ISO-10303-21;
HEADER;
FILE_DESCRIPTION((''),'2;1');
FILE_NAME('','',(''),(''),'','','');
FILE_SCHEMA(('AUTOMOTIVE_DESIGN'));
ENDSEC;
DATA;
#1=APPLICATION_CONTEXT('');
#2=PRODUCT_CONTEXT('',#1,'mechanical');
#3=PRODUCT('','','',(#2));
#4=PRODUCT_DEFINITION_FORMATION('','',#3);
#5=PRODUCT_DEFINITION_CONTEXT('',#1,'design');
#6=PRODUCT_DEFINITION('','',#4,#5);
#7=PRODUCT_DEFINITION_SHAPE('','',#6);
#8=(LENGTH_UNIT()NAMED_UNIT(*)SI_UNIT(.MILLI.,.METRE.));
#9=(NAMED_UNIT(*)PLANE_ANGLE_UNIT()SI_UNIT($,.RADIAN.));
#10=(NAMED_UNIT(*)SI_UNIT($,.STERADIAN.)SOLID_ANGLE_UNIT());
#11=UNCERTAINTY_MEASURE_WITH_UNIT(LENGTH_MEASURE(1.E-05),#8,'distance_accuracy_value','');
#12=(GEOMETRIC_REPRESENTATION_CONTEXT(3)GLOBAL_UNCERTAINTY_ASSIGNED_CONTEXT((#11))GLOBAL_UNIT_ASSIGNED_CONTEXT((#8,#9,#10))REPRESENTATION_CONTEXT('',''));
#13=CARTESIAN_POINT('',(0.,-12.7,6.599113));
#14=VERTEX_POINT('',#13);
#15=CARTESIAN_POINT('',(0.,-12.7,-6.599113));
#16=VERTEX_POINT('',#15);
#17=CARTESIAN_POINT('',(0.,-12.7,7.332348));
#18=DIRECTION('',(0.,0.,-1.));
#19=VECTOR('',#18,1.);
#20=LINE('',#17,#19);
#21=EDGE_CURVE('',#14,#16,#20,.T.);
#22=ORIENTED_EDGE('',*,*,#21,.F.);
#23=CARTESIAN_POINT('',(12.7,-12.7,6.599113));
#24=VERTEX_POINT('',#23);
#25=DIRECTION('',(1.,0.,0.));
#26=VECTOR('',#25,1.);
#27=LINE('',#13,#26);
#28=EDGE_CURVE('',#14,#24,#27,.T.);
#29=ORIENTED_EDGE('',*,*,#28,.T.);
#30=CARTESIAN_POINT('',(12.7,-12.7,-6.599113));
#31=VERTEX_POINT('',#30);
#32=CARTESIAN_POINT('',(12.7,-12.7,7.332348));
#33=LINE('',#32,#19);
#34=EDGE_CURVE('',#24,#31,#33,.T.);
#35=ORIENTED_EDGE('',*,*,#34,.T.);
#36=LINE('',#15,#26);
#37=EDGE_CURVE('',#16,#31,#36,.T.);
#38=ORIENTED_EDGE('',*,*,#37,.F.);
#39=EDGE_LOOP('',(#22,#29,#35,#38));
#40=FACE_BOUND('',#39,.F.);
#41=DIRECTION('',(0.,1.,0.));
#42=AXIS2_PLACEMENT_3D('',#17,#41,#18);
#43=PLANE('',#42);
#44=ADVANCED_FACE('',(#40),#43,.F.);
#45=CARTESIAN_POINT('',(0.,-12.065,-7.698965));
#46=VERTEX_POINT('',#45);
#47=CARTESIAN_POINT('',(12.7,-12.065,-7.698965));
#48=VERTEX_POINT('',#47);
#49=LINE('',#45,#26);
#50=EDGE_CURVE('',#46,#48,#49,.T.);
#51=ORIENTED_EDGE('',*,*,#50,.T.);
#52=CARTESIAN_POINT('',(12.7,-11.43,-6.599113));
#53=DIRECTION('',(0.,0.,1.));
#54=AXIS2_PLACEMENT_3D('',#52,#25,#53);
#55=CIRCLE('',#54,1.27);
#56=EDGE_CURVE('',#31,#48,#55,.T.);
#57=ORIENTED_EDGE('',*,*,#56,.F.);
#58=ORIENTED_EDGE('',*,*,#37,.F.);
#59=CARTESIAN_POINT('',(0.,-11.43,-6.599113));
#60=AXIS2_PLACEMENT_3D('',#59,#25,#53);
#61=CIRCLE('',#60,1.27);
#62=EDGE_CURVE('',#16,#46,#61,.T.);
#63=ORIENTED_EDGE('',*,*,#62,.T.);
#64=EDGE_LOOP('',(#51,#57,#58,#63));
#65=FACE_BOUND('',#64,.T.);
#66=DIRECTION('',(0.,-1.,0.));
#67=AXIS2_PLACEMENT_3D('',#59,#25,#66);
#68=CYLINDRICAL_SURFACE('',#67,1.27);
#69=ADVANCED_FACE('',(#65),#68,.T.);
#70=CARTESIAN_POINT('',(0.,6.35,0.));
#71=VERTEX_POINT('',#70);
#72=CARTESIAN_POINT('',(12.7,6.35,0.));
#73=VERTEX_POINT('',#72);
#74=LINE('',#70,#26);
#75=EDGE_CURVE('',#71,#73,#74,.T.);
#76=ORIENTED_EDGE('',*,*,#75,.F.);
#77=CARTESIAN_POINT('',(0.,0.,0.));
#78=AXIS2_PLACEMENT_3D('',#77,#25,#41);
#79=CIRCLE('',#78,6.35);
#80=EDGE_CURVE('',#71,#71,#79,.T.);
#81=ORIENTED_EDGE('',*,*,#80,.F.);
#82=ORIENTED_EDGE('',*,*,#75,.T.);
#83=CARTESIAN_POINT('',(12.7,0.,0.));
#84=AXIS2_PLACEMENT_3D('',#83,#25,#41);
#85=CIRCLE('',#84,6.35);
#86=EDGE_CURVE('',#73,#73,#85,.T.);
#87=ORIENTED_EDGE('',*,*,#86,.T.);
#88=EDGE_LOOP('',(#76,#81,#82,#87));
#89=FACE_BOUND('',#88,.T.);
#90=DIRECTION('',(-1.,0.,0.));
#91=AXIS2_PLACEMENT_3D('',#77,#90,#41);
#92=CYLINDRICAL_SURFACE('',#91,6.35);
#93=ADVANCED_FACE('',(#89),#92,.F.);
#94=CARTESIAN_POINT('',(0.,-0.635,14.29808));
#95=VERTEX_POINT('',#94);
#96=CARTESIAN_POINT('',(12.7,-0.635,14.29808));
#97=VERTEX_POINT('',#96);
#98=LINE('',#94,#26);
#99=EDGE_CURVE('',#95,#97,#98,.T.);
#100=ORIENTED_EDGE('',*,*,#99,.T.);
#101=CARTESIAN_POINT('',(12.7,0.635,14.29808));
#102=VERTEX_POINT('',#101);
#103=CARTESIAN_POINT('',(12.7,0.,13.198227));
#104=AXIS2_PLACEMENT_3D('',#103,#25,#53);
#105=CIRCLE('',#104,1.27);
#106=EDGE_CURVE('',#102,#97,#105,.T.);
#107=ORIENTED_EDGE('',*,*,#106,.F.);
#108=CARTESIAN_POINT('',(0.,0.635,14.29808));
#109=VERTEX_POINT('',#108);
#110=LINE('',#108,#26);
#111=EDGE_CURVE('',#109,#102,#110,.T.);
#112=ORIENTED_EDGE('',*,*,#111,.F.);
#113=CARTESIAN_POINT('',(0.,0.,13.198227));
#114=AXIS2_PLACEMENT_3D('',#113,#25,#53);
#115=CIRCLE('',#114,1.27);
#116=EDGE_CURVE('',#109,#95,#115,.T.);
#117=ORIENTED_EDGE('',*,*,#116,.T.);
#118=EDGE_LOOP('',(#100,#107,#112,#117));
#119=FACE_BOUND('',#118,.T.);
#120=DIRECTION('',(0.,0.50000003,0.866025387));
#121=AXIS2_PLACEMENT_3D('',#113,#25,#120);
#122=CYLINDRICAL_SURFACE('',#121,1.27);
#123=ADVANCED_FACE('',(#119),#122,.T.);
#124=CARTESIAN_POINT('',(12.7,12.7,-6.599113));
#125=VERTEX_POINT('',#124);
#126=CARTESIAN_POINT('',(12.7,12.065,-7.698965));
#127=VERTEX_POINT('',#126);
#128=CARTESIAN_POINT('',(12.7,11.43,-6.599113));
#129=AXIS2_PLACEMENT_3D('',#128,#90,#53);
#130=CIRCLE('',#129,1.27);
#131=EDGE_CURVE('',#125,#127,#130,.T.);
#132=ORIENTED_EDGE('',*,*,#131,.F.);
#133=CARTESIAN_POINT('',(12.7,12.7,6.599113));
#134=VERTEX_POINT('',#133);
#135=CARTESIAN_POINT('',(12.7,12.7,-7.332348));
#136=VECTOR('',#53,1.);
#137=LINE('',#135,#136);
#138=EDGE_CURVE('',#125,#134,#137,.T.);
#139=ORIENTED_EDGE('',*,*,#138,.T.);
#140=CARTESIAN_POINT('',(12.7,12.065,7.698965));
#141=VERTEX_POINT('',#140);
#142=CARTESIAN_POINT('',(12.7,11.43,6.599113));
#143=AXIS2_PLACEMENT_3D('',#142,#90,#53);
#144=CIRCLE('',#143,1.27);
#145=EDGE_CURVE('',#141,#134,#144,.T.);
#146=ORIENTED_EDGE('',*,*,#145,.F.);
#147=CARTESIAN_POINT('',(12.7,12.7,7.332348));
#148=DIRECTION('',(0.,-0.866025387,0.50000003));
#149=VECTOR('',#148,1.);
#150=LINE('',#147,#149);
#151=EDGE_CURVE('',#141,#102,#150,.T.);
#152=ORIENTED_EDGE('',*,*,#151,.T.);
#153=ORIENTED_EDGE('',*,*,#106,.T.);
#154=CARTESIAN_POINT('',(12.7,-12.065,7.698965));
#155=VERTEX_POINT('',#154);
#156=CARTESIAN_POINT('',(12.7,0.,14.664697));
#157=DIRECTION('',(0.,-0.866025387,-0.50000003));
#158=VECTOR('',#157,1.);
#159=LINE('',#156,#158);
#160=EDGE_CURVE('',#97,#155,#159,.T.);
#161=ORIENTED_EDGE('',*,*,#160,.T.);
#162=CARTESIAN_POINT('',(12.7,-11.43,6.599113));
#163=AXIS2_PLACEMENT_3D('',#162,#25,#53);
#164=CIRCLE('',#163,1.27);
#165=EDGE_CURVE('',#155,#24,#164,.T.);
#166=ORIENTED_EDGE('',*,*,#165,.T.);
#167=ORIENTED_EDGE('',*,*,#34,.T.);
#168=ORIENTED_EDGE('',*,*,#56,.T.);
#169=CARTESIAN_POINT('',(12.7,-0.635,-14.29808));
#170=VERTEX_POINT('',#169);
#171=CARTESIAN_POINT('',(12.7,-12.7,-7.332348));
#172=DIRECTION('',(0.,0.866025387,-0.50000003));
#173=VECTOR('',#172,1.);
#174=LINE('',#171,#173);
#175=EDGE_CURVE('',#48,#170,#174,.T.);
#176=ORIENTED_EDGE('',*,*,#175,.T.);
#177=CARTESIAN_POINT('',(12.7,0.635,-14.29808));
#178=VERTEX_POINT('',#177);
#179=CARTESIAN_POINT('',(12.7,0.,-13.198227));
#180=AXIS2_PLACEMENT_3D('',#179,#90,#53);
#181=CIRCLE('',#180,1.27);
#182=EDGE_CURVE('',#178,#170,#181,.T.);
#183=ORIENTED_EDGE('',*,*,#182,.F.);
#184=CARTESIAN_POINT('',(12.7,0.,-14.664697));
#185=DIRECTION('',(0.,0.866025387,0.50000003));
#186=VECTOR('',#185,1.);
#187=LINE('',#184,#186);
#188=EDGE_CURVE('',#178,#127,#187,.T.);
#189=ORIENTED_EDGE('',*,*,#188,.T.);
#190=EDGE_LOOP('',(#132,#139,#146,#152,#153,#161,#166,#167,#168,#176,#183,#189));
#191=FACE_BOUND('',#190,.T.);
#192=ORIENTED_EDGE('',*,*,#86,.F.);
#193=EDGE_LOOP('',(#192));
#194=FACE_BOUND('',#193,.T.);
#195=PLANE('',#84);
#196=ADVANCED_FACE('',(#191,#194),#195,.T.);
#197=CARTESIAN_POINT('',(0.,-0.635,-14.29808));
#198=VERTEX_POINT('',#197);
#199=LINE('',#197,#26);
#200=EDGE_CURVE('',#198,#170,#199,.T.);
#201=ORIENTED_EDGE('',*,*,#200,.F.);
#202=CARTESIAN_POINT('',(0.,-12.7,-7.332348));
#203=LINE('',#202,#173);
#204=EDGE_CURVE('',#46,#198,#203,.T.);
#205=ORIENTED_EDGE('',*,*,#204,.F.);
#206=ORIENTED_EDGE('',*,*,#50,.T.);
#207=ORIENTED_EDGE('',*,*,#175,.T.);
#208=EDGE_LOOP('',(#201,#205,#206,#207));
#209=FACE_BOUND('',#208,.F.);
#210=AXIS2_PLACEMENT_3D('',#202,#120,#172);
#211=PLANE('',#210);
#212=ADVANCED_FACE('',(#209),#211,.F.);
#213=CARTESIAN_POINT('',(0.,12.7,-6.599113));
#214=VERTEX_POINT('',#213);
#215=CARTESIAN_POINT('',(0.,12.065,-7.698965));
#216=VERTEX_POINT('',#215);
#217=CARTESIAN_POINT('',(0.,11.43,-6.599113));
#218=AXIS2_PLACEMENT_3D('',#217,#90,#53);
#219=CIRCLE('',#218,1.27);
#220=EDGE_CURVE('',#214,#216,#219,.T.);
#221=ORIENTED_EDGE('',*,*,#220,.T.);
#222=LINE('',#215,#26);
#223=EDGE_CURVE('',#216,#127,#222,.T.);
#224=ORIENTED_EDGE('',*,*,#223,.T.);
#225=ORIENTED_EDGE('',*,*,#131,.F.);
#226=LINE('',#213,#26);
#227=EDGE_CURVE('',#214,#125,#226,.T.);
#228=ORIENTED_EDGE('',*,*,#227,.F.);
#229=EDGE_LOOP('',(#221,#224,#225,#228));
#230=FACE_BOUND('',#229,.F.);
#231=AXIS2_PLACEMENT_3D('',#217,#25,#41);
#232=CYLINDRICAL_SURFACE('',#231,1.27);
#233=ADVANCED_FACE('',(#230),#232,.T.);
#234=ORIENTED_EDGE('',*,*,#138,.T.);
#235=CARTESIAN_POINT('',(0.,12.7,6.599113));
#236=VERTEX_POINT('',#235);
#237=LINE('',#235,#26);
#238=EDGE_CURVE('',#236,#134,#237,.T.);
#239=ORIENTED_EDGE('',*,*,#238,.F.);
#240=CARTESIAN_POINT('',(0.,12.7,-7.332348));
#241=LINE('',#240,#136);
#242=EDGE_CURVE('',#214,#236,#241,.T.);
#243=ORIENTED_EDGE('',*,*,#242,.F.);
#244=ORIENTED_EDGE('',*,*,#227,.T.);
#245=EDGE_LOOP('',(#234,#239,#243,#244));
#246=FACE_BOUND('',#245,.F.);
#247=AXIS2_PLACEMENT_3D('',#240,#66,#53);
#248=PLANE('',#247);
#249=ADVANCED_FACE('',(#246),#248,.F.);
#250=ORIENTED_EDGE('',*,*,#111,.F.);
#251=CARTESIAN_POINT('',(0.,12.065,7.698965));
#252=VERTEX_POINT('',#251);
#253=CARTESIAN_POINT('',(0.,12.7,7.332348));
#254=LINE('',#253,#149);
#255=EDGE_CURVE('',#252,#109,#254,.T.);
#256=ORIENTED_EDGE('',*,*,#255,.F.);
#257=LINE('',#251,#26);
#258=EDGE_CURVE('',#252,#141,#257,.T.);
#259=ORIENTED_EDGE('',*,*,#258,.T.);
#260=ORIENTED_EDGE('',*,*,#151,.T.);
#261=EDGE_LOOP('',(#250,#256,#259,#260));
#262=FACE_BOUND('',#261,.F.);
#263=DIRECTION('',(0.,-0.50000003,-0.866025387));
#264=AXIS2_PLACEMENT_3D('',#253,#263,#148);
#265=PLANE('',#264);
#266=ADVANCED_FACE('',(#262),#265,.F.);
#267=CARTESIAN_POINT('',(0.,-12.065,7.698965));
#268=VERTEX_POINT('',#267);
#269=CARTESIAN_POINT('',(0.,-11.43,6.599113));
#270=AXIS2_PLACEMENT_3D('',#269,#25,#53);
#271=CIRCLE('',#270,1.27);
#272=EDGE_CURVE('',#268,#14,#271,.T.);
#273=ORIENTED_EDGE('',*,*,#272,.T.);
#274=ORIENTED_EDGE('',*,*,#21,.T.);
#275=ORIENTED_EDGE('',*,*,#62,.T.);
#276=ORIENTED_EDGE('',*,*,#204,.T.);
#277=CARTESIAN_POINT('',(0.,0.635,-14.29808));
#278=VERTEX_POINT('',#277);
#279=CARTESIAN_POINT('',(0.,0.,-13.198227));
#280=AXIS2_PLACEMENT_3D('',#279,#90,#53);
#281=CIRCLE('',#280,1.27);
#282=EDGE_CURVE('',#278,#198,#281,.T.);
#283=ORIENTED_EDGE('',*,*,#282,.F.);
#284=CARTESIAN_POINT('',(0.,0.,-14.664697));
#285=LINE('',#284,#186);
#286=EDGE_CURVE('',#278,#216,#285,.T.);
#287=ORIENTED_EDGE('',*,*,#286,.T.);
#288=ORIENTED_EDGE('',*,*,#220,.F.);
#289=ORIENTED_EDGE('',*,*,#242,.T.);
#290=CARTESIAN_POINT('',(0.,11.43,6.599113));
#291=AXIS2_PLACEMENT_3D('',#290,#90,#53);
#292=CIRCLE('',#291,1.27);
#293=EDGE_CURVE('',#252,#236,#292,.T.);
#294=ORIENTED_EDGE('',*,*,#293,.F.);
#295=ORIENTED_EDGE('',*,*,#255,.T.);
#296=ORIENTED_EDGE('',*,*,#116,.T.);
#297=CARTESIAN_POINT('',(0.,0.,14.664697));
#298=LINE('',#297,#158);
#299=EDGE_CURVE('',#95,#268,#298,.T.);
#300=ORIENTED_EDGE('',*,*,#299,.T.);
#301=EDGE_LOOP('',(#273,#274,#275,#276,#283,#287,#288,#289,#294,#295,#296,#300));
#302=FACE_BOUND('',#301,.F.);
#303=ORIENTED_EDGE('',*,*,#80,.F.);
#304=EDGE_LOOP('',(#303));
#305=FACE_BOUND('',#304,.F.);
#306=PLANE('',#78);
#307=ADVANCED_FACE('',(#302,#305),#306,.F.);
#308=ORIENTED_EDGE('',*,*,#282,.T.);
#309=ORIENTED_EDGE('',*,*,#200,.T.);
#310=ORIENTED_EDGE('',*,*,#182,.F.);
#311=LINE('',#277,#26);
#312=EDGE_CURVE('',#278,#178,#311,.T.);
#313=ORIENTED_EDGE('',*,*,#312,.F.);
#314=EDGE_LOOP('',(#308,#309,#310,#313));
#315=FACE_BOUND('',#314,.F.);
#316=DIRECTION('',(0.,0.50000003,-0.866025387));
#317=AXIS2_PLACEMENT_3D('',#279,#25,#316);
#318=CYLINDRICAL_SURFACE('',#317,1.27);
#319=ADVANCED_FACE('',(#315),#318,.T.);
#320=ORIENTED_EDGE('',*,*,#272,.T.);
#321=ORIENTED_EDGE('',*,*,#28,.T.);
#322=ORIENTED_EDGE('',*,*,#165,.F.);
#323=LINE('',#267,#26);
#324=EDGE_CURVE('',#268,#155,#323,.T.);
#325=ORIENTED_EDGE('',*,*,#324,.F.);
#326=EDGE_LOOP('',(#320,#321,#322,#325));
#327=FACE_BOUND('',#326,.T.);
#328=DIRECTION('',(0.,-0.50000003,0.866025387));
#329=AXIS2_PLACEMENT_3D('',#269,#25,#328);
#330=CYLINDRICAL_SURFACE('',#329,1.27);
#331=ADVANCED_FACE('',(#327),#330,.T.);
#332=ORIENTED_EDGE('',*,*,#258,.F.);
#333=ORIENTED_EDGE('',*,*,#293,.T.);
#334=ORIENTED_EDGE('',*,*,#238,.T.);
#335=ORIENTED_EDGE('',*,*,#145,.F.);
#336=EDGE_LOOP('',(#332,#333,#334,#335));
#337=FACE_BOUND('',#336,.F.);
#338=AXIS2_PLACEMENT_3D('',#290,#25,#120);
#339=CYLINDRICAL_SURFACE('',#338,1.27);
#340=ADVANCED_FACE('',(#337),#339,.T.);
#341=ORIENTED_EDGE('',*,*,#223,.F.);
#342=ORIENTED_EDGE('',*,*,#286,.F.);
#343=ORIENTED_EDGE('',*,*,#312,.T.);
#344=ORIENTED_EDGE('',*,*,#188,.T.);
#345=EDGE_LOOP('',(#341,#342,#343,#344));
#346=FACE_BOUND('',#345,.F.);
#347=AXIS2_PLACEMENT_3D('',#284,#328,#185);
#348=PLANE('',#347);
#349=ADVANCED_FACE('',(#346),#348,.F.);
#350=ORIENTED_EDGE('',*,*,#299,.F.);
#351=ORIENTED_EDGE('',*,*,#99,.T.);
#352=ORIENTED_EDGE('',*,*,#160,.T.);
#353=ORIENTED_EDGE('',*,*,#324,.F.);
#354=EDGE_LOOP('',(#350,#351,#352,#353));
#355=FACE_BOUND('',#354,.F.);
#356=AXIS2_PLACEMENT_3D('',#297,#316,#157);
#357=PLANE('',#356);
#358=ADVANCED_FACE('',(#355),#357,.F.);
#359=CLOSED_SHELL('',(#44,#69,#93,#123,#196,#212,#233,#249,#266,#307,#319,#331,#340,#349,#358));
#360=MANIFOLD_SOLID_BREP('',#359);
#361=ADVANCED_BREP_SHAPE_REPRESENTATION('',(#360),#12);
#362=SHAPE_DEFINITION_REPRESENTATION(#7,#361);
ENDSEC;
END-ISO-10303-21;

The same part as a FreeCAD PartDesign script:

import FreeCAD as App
import Part
import Sketcher
Q = App.Units.Quantity


def edges_at(feature, points):
    """Names of the edges that pass closest to the given points."""
    edges = feature.Shape.Edges
    near = lambda p: min(range(len(edges)), key=lambda i: edges[i].distToShape(Part.Vertex(*p))[0])
    return sorted({f"Edge{near(p) + 1}" for p in points})

doc = App.newDocument("Part")
body = doc.addObject("PartDesign::Body", "Body")

# Sketch on YZ plane
sketch1 = body.newObject("Sketcher::SketchObject", "Sketch")
sketch1.AttachmentSupport = (doc.getObject("YZ_Plane"), [""])
sketch1.MapMode = "FlatFace"
sketch1.addGeometry([
    Part.LineSegment(App.Vector(13, 7, 0), App.Vector(0, 15, 0)),  # 0
    Part.LineSegment(App.Vector(0, 15, 0), App.Vector(-13, 7, 0)),  # 1
    Part.LineSegment(App.Vector(-13, 7, 0), App.Vector(-13, -7, 0)),  # 2
    Part.LineSegment(App.Vector(-13, -7, 0), App.Vector(0, -15, 0)),  # 3
    Part.LineSegment(App.Vector(0, -15, 0), App.Vector(13, -7, 0)),  # 4
    Part.LineSegment(App.Vector(13, -7, 0), App.Vector(13, 7, 0)),  # 5
    Part.Circle(App.Vector(0, 0, 0), App.Vector(0, 0, 1), 6),  # 6
], False)
sketch1.addConstraint([
    Sketcher.Constraint("Coincident", 0, 2, 1, 1),
    Sketcher.Constraint("Coincident", 1, 2, 2, 1),
    Sketcher.Constraint("Coincident", 2, 2, 3, 1),
    Sketcher.Constraint("Coincident", 3, 2, 4, 1),
    Sketcher.Constraint("Coincident", 4, 2, 5, 1),
    Sketcher.Constraint("Coincident", 5, 2, 0, 1),
    Sketcher.Constraint("Vertical", 2),
    Sketcher.Constraint("Vertical", 5),
    Sketcher.Constraint("Coincident", 6, 3, -1, 1),
    Sketcher.Constraint("Symmetric", 0, 2, 3, 2, -1, 1),
    Sketcher.Constraint("Symmetric", 1, 2, 4, 2, -1, 1),
    Sketcher.Constraint("PointOnObject", 0, 2, -2),
    Sketcher.Constraint("Parallel", 0, 3),
    Sketcher.Constraint("Horizontal", 2, 2, 4, 2),
    Sketcher.Constraint("Diameter", 6, Q("0.5 in")),
    Sketcher.Constraint("Angle", 0, Q("149.999998 deg")),
    Sketcher.Constraint("DistanceX", 2, 2, 4, 2, Q("1 in")),
    Sketcher.Constraint("DistanceY", 2, 2, 2, 1, 14.664696),
])
pad1 = body.newObject("PartDesign::Pad", "Pad")
pad1.Profile = sketch1
pad1.Length = Q("0.5 in")
doc.recompute()

fillet = body.newObject("PartDesign::Fillet", "Fillet")
fillet.Base = (pad1, edges_at(pad1, [
    (6.35, -12.7, -7.332),
    (6.35, -12.7, 7.332),
    (6.35, 0, -14.665),
    (6.35, 12.7, -7.332),
    (6.35, 12.7, 7.332),
    (6.35, 0, 14.665),
]))
fillet.Radius = Q("0.05 in")

doc.recompute()
